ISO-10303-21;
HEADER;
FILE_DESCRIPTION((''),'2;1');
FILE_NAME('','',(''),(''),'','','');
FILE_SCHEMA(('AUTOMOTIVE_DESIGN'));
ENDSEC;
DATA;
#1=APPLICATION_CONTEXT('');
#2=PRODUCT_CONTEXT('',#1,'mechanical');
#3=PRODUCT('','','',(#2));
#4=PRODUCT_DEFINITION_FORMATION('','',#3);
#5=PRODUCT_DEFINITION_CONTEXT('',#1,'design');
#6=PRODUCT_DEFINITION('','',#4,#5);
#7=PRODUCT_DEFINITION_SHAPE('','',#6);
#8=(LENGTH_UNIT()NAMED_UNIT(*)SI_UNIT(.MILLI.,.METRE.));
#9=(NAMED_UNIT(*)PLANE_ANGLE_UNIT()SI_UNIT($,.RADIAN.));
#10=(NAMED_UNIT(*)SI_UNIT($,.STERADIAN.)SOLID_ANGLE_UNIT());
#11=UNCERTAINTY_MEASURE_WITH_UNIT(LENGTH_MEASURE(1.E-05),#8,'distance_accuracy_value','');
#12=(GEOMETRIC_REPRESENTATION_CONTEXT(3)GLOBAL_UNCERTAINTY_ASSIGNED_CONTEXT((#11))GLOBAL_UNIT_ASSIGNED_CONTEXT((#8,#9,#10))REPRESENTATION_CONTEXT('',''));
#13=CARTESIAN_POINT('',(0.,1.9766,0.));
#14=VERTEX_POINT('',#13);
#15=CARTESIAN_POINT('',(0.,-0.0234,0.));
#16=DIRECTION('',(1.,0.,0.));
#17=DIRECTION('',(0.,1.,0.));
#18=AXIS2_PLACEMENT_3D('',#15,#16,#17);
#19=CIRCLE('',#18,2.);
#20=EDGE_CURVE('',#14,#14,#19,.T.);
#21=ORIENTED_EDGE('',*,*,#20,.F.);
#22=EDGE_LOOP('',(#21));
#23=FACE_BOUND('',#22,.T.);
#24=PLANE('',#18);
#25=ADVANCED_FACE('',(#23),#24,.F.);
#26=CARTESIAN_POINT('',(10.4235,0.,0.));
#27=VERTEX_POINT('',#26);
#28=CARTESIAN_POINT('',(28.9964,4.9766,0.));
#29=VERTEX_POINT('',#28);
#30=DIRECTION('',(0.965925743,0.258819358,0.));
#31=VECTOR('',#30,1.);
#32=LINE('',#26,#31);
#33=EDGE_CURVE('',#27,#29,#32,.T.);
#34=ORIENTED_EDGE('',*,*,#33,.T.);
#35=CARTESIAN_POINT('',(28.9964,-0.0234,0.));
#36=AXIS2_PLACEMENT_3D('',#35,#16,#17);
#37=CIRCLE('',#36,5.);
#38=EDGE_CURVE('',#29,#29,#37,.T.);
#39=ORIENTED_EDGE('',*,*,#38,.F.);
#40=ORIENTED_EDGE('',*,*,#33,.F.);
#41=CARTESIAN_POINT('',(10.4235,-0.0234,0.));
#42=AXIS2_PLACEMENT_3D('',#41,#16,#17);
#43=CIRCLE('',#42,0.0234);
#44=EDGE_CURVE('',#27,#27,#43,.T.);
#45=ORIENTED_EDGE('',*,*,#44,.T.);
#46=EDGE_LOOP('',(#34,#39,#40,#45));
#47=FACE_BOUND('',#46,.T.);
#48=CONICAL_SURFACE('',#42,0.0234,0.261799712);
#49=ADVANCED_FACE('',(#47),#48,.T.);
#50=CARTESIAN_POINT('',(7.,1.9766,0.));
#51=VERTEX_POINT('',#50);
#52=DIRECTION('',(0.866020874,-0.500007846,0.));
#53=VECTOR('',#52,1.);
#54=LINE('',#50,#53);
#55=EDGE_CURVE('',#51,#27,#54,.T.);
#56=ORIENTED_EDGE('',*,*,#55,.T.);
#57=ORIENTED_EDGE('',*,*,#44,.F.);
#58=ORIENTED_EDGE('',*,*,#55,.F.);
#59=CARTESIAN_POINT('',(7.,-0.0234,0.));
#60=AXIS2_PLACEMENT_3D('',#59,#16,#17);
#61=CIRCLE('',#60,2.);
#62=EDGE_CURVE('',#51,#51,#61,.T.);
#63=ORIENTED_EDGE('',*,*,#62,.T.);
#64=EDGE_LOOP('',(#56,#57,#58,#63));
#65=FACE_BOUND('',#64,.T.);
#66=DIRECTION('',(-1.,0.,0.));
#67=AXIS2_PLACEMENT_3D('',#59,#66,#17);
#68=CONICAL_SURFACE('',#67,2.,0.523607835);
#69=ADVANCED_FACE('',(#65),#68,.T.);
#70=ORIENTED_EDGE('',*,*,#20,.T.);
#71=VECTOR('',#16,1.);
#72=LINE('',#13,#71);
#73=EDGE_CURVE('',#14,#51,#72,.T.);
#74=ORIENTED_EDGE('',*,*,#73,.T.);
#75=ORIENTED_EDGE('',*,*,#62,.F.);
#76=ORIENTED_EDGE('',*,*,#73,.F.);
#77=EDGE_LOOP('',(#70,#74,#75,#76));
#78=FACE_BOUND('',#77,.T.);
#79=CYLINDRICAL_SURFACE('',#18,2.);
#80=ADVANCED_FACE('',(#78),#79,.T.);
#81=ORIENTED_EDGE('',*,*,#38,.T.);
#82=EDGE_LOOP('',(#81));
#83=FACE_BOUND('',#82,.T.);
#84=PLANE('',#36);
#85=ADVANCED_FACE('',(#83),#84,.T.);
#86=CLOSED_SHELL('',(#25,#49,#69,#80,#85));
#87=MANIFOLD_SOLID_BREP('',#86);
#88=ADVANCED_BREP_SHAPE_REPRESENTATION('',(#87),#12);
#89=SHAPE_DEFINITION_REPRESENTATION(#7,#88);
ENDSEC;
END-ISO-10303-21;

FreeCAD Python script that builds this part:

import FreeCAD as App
import Part
import Sketcher
from FreeCAD import Vector
Q = App.Units.Quantity

doc = App.newDocument("Part")
body = doc.addObject("PartDesign::Body", "Body")

sketch1 = body.newObject("Sketcher::SketchObject", "Sketch")
sketch1.AttachmentSupport = (doc.getObject("XY_Plane"), [""])
sketch1.MapMode = "FlatFace"
sketch1.addGeometry([
    Part.LineSegment(Vector(0, 0, 0), Vector(29, 0, 0)),
    Part.LineSegment(Vector(29, 0, 0), Vector(29, 5, 0)),
    Part.LineSegment(Vector(29, 5, 0), Vector(10.4, 0, 0)),
    Part.LineSegment(Vector(10.4, 0, 0), Vector(7, 2, 0)),
    Part.LineSegment(Vector(7, 2, 0), Vector(0, 2, 0)),
    Part.LineSegment(Vector(0, 2, 0), Vector(0, 0, 0)),
], False)
sketch1.addGeometry(Part.LineSegment(Vector(0, 0, 0), Vector(29, 0, 0)), True)
sketch1.addConstraint([
    Sketcher.Constraint("Coincident", 0, 2, 1, 1),
    Sketcher.Constraint("Coincident", 1, 2, 2, 1),
    Sketcher.Constraint("Coincident", 2, 2, 3, 1),
    Sketcher.Constraint("Coincident", 3, 2, 4, 1),
    Sketcher.Constraint("Coincident", 4, 2, 5, 1),
    Sketcher.Constraint("Coincident", 5, 2, 0, 1),
    Sketcher.Constraint("Horizontal", 0),
    Sketcher.Constraint("Vertical", 1),
    Sketcher.Constraint("Horizontal", 4),
    Sketcher.Constraint("Vertical", 5),
    Sketcher.Constraint("Horizontal", 6),
    Sketcher.Constraint("Coincident", 6, 1, 5, 2),
    Sketcher.Constraint("PointOnObject", 2, 2, -1),
    Sketcher.Constraint("PointOnObject", 4, 2, -2),
    Sketcher.Constraint("Vertical", 1, 2, 6, 2),
    Sketcher.Constraint("DistanceY", 1, 1, 1, 2, Q("5 mm")),
    Sketcher.Constraint("DistanceY", 5, 2, 5, 1, Q("2 mm")),
    Sketcher.Constraint("DistanceX", 4, 2, 4, 1, Q("7 mm")),
    Sketcher.Constraint("Angle", 2, Q("-165 deg")),
    Sketcher.Constraint("Angle", 3, Q("149.9995 deg")),
    Sketcher.Constraint("DistanceY", 0, 2, -1, 1, Q("0.0234 mm")),
])
revolution = body.newObject("PartDesign::Revolution", "Revolution")
revolution.Profile = sketch1
revolution.ReferenceAxis = (sketch1, ["Axis0"])
revolution.Angle = 360

doc.recompute()
